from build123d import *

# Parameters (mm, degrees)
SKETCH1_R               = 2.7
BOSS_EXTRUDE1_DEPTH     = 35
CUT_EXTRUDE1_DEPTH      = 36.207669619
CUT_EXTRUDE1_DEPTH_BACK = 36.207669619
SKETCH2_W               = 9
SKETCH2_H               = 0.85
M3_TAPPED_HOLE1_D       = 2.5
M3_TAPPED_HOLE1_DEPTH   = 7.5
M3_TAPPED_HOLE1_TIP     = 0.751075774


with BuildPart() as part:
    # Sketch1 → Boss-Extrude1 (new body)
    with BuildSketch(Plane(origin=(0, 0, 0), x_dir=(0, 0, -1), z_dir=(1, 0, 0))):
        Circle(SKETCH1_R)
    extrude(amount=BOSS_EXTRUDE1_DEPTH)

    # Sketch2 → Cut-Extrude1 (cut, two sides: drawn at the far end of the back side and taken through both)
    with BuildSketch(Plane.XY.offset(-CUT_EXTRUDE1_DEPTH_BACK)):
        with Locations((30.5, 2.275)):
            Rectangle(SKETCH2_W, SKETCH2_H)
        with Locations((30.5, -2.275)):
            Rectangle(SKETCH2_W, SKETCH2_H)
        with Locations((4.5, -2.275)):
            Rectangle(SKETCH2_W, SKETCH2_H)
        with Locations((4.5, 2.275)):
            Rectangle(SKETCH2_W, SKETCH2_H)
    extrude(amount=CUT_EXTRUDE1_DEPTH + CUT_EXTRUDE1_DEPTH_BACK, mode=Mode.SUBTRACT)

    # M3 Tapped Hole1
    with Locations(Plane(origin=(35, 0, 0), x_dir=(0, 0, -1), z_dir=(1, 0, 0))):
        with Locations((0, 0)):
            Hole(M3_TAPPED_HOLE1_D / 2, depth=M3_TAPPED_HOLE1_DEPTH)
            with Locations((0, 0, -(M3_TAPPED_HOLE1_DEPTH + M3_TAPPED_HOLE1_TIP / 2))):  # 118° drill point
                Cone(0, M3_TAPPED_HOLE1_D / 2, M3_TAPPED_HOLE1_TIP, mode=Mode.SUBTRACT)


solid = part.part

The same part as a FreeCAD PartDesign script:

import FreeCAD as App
import Part
import Sketcher
from FreeCAD import Vector
Q = App.Units.Quantity

doc = App.newDocument("Part")
body = doc.addObject("PartDesign::Body", "Body")

# Sketch on YZ plane
sketch1 = body.newObject("Sketcher::SketchObject", "Sketch")
sketch1.AttachmentSupport = (doc.getObject("YZ_Plane"), [""])
sketch1.MapMode = "FlatFace"
sketch1.addGeometry(Part.Circle(Vector(0, 0, 0), Vector(0, 0, 1), 2.7), False)
sketch1.addConstraint(Sketcher.Constraint("Coincident", 0, 3, -1, 1))
sketch1.addConstraint(Sketcher.Constraint("Diameter", 0, Q("5.4 mm")))
pad1 = body.newObject("PartDesign::Pad", "Pad")
pad1.Profile = sketch1
pad1.Length = 35

# Sketch on XY plane
sketch2 = body.newObject("Sketcher::SketchObject", "Sketch001")
sketch2.AttachmentSupport = (doc.getObject("XY_Plane"), [""])
sketch2.MapMode = "FlatFace"
sketch2.addGeometry(Part.LineSegment(Vector(26, 2.7, 0), Vector(26, 1.9, 0)), False)
sketch2.addGeometry(Part.LineSegment(Vector(26, 1.9, 0), Vector(35, 1.9, 0)), False)
sketch2.addGeometry(Part.LineSegment(Vector(35, 1.9, 0), Vector(35, 2.7, 0)), False)
sketch2.addGeometry(Part.LineSegment(Vector(35, 2.7, 0), Vector(26, 2.7, 0)), False)
sketch2.addGeometry(Part.LineSegment(Vector(26, -1.9, 0), Vector(26, -2.7, 0)), False)
sketch2.addGeometry(Part.LineSegment(Vector(26, -2.7, 0), Vector(35, -2.7, 0)), False)
sketch2.addGeometry(Part.LineSegment(Vector(35, -2.7, 0), Vector(35, -1.9, 0)), False)
sketch2.addGeometry(Part.LineSegment(Vector(35, -1.9, 0), Vector(26, -1.9, 0)), False)
sketch2.addGeometry(Part.LineSegment(Vector(0, -1.9, 0), Vector(0, -2.7, 0)), False)
sketch2.addGeometry(Part.LineSegment(Vector(0, -2.7, 0), Vector(9, -2.7, 0)), False)
sketch2.addGeometry(Part.LineSegment(Vector(9, -2.7, 0), Vector(9, -1.9, 0)), False)
sketch2.addGeometry(Part.LineSegment(Vector(9, -1.9, 0), Vector(0, -1.9, 0)), False)
sketch2.addGeometry(Part.LineSegment(Vector(0, 2.7, 0), Vector(0, 1.9, 0)), False)
sketch2.addGeometry(Part.LineSegment(Vector(0, 1.9, 0), Vector(9, 1.9, 0)), False)
sketch2.addGeometry(Part.LineSegment(Vector(9, 1.9, 0), Vector(9, 2.7, 0)), False)
sketch2.addGeometry(Part.LineSegment(Vector(9, 2.7, 0), Vector(0, 2.7, 0)), False)
sketch2.addConstraint(Sketcher.Constraint("Coincident", 0, 2, 1, 1))
sketch2.addConstraint(Sketcher.Constraint("Coincident", 1, 2, 2, 1))
sketch2.addConstraint(Sketcher.Constraint("Coincident", 2, 2, 3, 1))
sketch2.addConstraint(Sketcher.Constraint("Coincident", 3, 2, 0, 1))
sketch2.addConstraint(Sketcher.Constraint("Coincident", 4, 2, 5, 1))
sketch2.addConstraint(Sketcher.Constraint("Coincident", 5, 2, 6, 1))
sketch2.addConstraint(Sketcher.Constraint("Coincident", 6, 2, 7, 1))
sketch2.addConstraint(Sketcher.Constraint("Coincident", 7, 2, 4, 1))
sketch2.addConstraint(Sketcher.Constraint("Coincident", 8, 2, 9, 1))
sketch2.addConstraint(Sketcher.Constraint("Coincident", 9, 2, 10, 1))
sketch2.addConstraint(Sketcher.Constraint("Coincident", 10, 2, 11, 1))
sketch2.addConstraint(Sketcher.Constraint("Coincident", 11, 2, 8, 1))
sketch2.addConstraint(Sketcher.Constraint("Coincident", 12, 2, 13, 1))
sketch2.addConstraint(Sketcher.Constraint("Coincident", 13, 2, 14, 1))
sketch2.addConstraint(Sketcher.Constraint("Coincident", 14, 2, 15, 1))
sketch2.addConstraint(Sketcher.Constraint("Coincident", 15, 2, 12, 1))
sketch2.addConstraint(Sketcher.Constraint("Vertical", 0))
sketch2.addConstraint(Sketcher.Constraint("Horizontal", 1))
sketch2.addConstraint(Sketcher.Constraint("Vertical", 2))
sketch2.addConstraint(Sketcher.Constraint("Horizontal", 3))
sketch2.addConstraint(Sketcher.Constraint("Vertical", 4))
sketch2.addConstraint(Sketcher.Constraint("Horizontal", 5))
sketch2.addConstraint(Sketcher.Constraint("Vertical", 6))
sketch2.addConstraint(Sketcher.Constraint("Horizontal", 7))
sketch2.addConstraint(Sketcher.Constraint("Vertical", 8))
sketch2.addConstraint(Sketcher.Constraint("Horizontal", 9))
sketch2.addConstraint(Sketcher.Constraint("Vertical", 10))
sketch2.addConstraint(Sketcher.Constraint("Horizontal", 11))
sketch2.addConstraint(Sketcher.Constraint("Vertical", 12))
sketch2.addConstraint(Sketcher.Constraint("Horizontal", 13))
sketch2.addConstraint(Sketcher.Constraint("Vertical", 14))
sketch2.addConstraint(Sketcher.Constraint("Horizontal", 15))
sketch2.addConstraint(Sketcher.Constraint("Symmetric", 11, 2, 12, 2, -1, 1))
sketch2.addConstraint(Sketcher.Constraint("Symmetric", 3, 2, 4, 2, -1))
sketch2.addConstraint(Sketcher.Constraint("Symmetric", 1, 2, 6, 2, -1))
sketch2.addConstraint(Sketcher.Constraint("Symmetric", 9, 2, 14, 2, -1))
sketch2.addConstraint(Sketcher.Constraint("PointOnObject", 8, 2, -2))
sketch2.addConstraint(Sketcher.Constraint("Horizontal", 5, 2, 8, 2))
sketch2.addConstraint(Sketcher.Constraint("Horizontal", 7, 2, 10, 2))
sketch2.addConstraint(Sketcher.Constraint("Equal", 7, 9))
sketch2.addConstraint(Sketcher.Constraint("DistanceX", 1, 1, 1, 2, Q("9 mm")))
sketch2.addConstraint(Sketcher.Constraint("DistanceX", -1, 1, 0, 2, Q("26 mm")))
sketch2.addConstraint(Sketcher.Constraint("DistanceY", 0, 2, 0, 1, Q("0.85 mm")))
sketch2.addConstraint(Sketcher.Constraint("DistanceY", -1, 1, 2, 2, Q("2.7 mm")))
pocket1 = body.newObject("PartDesign::Pocket", "Pocket")
pocket1.Profile = sketch2
pocket1.Type = "ThroughAll"
pocket1.Midplane = True

# Sketch on YZ plane
sketch3 = body.newObject("Sketcher::SketchObject", "Sketch002")
sketch3.AttachmentSupport = (doc.getObject("YZ_Plane"), [""])
sketch3.MapMode = "FlatFace"
sketch3.AttachmentOffset = App.Placement(Vector(0, 0, 35), App.Rotation())
sketch3.addGeometry(Part.Circle(Vector(0, 0, 0), Vector(0, 0, 1), 1.2), False)
sketch3.addConstraint(Sketcher.Constraint("Coincident", 0, 3, -1, 1))
sketch3.addConstraint(Sketcher.Constraint("Diameter", 0, Q("2.5 mm")))
doc.recompute()
hole = body.newObject("PartDesign::Hole", "Hole")
hole.Profile = sketch3
hole.ThreadType = "None"
hole.Diameter = 2.5
hole.DepthType = "Dimension"
hole.Depth = 7.5
hole.DrillPoint = "Angled"
hole.DrillPointAngle = 118

doc.recompute()
